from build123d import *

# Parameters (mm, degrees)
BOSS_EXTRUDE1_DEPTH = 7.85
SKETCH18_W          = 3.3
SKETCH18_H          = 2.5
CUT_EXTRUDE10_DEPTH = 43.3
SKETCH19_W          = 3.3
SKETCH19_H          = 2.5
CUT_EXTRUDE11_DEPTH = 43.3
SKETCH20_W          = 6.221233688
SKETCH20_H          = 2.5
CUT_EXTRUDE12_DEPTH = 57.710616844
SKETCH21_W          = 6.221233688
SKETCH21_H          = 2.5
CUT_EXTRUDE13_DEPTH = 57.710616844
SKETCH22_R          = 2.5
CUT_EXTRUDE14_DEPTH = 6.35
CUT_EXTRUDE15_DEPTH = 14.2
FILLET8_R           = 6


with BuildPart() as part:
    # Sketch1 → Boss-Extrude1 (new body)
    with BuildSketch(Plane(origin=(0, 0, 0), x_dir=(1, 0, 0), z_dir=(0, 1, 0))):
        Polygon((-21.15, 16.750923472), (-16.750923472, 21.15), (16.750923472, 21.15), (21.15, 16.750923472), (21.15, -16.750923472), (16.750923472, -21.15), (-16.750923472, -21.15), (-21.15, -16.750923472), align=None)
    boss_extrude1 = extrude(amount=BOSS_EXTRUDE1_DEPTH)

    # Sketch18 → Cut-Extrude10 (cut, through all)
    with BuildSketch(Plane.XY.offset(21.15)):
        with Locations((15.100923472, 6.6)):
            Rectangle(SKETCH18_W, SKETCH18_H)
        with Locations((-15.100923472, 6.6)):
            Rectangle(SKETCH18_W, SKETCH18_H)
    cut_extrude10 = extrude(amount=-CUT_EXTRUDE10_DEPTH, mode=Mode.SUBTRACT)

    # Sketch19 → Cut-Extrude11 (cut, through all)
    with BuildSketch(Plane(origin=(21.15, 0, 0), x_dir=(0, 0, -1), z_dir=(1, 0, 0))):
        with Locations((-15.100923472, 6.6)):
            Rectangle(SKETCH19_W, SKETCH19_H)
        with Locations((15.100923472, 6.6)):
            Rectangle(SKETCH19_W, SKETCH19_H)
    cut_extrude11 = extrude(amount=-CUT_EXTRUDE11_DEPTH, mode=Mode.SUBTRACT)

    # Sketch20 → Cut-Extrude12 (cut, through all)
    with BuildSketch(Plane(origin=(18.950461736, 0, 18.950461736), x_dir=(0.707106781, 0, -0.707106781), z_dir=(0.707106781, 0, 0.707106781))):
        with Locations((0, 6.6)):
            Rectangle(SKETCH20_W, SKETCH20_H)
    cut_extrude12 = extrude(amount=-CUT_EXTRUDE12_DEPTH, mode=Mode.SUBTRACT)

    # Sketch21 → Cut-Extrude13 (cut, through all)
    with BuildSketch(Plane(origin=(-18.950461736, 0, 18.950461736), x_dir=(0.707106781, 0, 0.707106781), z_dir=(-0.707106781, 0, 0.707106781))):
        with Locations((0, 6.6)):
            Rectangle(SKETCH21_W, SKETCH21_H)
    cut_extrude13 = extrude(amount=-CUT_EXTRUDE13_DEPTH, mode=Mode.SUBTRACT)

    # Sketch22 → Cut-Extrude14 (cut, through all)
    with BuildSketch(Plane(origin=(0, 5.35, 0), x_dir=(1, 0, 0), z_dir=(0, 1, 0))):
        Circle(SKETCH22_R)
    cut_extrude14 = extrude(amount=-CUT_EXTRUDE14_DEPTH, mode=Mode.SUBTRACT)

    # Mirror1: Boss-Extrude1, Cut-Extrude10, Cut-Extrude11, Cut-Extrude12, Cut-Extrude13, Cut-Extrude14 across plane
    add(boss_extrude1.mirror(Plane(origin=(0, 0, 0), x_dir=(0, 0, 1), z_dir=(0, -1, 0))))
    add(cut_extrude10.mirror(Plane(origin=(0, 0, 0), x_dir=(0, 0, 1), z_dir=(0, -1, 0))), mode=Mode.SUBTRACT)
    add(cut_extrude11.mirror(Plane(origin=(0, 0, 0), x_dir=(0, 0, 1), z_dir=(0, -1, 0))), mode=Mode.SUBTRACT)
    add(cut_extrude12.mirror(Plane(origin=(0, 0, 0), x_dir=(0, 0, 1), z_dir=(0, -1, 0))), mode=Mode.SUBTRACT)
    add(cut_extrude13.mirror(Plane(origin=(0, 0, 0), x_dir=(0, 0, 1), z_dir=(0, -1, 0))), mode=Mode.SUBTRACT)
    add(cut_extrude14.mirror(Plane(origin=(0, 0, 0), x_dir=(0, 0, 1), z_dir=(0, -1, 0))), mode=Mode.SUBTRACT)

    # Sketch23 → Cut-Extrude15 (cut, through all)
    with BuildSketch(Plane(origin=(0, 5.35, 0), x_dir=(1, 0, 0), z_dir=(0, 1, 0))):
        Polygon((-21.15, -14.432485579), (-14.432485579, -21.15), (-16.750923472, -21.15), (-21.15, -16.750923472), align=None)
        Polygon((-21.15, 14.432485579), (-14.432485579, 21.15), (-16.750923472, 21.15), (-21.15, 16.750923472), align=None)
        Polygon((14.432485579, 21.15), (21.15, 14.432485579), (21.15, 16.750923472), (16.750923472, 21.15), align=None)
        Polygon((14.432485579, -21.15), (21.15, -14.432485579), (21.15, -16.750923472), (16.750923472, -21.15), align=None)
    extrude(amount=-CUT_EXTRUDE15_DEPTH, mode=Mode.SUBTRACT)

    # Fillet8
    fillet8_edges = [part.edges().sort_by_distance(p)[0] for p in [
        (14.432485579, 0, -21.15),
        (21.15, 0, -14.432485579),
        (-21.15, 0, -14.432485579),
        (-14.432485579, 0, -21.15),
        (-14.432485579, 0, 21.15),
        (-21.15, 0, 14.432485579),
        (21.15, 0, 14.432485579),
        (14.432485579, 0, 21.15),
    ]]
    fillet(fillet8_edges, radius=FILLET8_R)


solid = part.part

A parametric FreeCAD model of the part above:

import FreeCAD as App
import Part
import Sketcher

V = App.Vector
Q = App.Units.Quantity


def edges_at(feature, points):
    """Names of the edges that pass closest to the given points."""
    edges = feature.Shape.Edges
    near = lambda p: min(range(len(edges)), key=lambda i: edges[i].distToShape(Part.Vertex(*p))[0])
    return sorted({f"Edge{near(p) + 1}" for p in points})


def add_polygon(sketch, points):
    """Adds a closed chain of lines whose ends are joined by coincident constraints."""
    first, n = sketch.GeometryCount, len(points)
    for a, b in zip(points, points[1:] + points[:1]):
        sketch.addGeometry(Part.LineSegment(App.Vector(*a, 0), App.Vector(*b, 0)), False)
    for i in range(n):
        sketch.addConstraint(Sketcher.Constraint("Coincident", first + i, 2, first + (i + 1) % n, 1))

doc = App.newDocument("Part")
params = doc.addObject("Spreadsheet::Sheet", "Params")
for row, (alias, value) in enumerate([
    ("pad1_length", "7.85 mm"),
    ("sketch2_width", "3.3 mm"),
    ("sketch2_height", "2.5 mm"),
    ("sketch3_width", "2.5 mm"),
    ("sketch3_height", "3.3 mm"),
    ("sketch4_height", "2.5 mm"),
    ("sketch5_height", "2.5 mm"),
    ("sketch6_diameter", "5 mm"),
    ("sketch7_length", "9.5 mm"),
    ("fillet_radius", "6 mm"),
], start=1):
    params.set(f"A{row}", alias)
    params.set(f"B{row}", "=" + value)
    params.setAlias(f"B{row}", alias)

body = doc.addObject("PartDesign::Body", "Body")

# Sketch on XZ plane
sketch1 = body.newObject("Sketcher::SketchObject", "Sketch")
sketch1.AttachmentSupport = (doc.getObject("XZ_Plane"), [""])
sketch1.MapMode = "FlatFace"
add_polygon(sketch1, [(-17, -21), (-21, -17), (-21, 17), (-17, 21), (17, 21), (21, 17), (21, -17), (17, -21)])  # lines 0-7
sketch1.addConstraint([
    Sketcher.Constraint("Vertical", 1),
    Sketcher.Constraint("Horizontal", 3),
    Sketcher.Constraint("Vertical", 5),
    Sketcher.Constraint("Horizontal", 7),
    Sketcher.Constraint("Symmetric", 0, 2, 4, 2, -1, 1),
    Sketcher.Constraint("Symmetric", 2, 2, 6, 2, -1, 1),
    Sketcher.Constraint("Perpendicular", 0, 2),
    Sketcher.Constraint("Perpendicular", 2, 4),
    Sketcher.Constraint("Perpendicular", 4, 6),
    Sketcher.Constraint("Horizontal", 1, 2, 4, 2),
    Sketcher.Constraint("Vertical", 3, 2, 6, 2),
    Sketcher.Constraint("Equal", 7, 1),
    Sketcher.Constraint("DistanceX", 1, 2, 4, 2, Q("42.3 mm")),
    Sketcher.Constraint("DistanceX", 3, 1, 3, 2, Q("33.501847 mm")),
])
pad1 = body.newObject("PartDesign::Pad", "Pad")
pad1.Profile = sketch1
pad1.setExpression("Length", "Params.pad1_length")
pad1.Reversed = True

# Sketch on XY plane
sketch2 = body.newObject("Sketcher::SketchObject", "Sketch001")
sketch2.AttachmentSupport = (doc.getObject("XY_Plane"), [""])
sketch2.MapMode = "FlatFace"
sketch2.AttachmentOffset = App.Placement(V(0, 0, 21.15), App.Rotation())
add_polygon(sketch2, [(13.5, 7.8), (13.5, 5.3), (16.8, 5.3), (16.8, 7.8)])  # lines 0-3
add_polygon(sketch2, [(-16.8, 7.8), (-16.8, 5.3), (-13.5, 5.3), (-13.5, 7.8)])  # lines 4-7
sketch2.addConstraint([
    Sketcher.Constraint("Vertical", 0),
    Sketcher.Constraint("Horizontal", 1),
    Sketcher.Constraint("Vertical", 2),
    Sketcher.Constraint("Horizontal", 3),
    Sketcher.Constraint("Vertical", 4),
    Sketcher.Constraint("Horizontal", 5),
    Sketcher.Constraint("Vertical", 6),
    Sketcher.Constraint("Horizontal", 7),
    Sketcher.Constraint("Symmetric", 1, 2, 4, 2, -2),
    Sketcher.Constraint("Symmetric", 3, 2, 6, 2, -2),
    Sketcher.Constraint("DistanceX", 1, 1, 1, 2, Q("3.3 mm")),
    Sketcher.Constraint("DistanceY", 0, 2, 0, 1, Q("2.5 mm")),
    Sketcher.Constraint("DistanceY", -1, 1, 0, 2, Q("5.35 mm")),
    Sketcher.Constraint("DistanceX", -1, 1, 0, 2, Q("13.450923 mm")),
])
sketch2.setExpression("Constraints[18]", "Params.sketch2_width")
sketch2.setExpression("Constraints[19]", "Params.sketch2_height")
pocket1 = body.newObject("PartDesign::Pocket", "Pocket")
pocket1.Profile = sketch2
pocket1.Type = "ThroughAll"

# Sketch on YZ plane
sketch3 = body.newObject("Sketcher::SketchObject", "Sketch002")
sketch3.AttachmentSupport = (doc.getObject("YZ_Plane"), [""])
sketch3.MapMode = "FlatFace"
sketch3.AttachmentOffset = App.Placement(V(0, 0, 21.15), App.Rotation())
add_polygon(sketch3, [(7.8, 16.8), (5.3, 16.8), (5.3, 13.5), (7.8, 13.5)])  # lines 0-3
add_polygon(sketch3, [(7.8, -13.5), (5.3, -13.5), (5.3, -16.8), (7.8, -16.8)])  # lines 4-7
sketch3.addConstraint([
    Sketcher.Constraint("Horizontal", 0),
    Sketcher.Constraint("Vertical", 1),
    Sketcher.Constraint("Horizontal", 2),
    Sketcher.Constraint("Vertical", 3),
    Sketcher.Constraint("Horizontal", 4),
    Sketcher.Constraint("Vertical", 5),
    Sketcher.Constraint("Horizontal", 6),
    Sketcher.Constraint("Vertical", 7),
    Sketcher.Constraint("Symmetric", 1, 2, 4, 2, -1),
    Sketcher.Constraint("Symmetric", 3, 2, 6, 2, -1),
    Sketcher.Constraint("DistanceX", 0, 2, 0, 1, Q("2.5 mm")),
    Sketcher.Constraint("DistanceY", 1, 2, 1, 1, Q("3.3 mm")),
    Sketcher.Constraint("DistanceX", -1, 1, 0, 2, Q("5.35 mm")),
    Sketcher.Constraint("DistanceY", -1, 1, 0, 2, Q("16.750923 mm")),
])
sketch3.setExpression("Constraints[18]", "Params.sketch3_width")
sketch3.setExpression("Constraints[19]", "Params.sketch3_height")
pocket2 = body.newObject("PartDesign::Pocket", "Pocket001")
pocket2.Profile = sketch3
pocket2.Type = "ThroughAll"

# Sketch on an angled plane
sketch4 = body.newObject("Sketcher::SketchObject", "Sketch003")
sketch4.Placement = App.Placement(V(18.950462, 0, 18.950462), App.Rotation(V(0.707106781, 0, -0.707106781), V(0, 0.999999999, 0), V(0.707106781, 0, 0.707106781), "ZXY"))
add_polygon(sketch4, [(-3.1, 7.8), (-3.1, 5.3), (3.1, 5.3), (3.1, 7.8)])  # lines 0-3
sketch4.addConstraint([
    Sketcher.Constraint("Vertical", 0),
    Sketcher.Constraint("Horizontal", 1),
    Sketcher.Constraint("Vertical", 2),
    Sketcher.Constraint("Horizontal", 3),
    Sketcher.Constraint("DistanceY", 0, 2, 0, 1, Q("2.5 mm")),
    Sketcher.Constraint("DistanceY", -1, 1, 0, 2, Q("5.35 mm")),
    Sketcher.Constraint("DistanceX", 1, 1, 1, 2, Q("6.221234 mm")),
    Sketcher.Constraint("DistanceX", 0, 2, -1, 1, Q("3.110617 mm")),
])
sketch4.setExpression("Constraints[8]", "Params.sketch4_height")
pocket3 = body.newObject("PartDesign::Pocket", "Pocket002")
pocket3.Profile = sketch4
pocket3.Type = "ThroughAll"

# Sketch on an angled plane
sketch5 = body.newObject("Sketcher::SketchObject", "Sketch004")
sketch5.Placement = App.Placement(V(-18.950462, 0, 18.950462), App.Rotation(V(0.707106781, 0, 0.707106781), V(0, 0.999999999, 0), V(-0.707106781, 0, 0.707106781), "ZXY"))
add_polygon(sketch5, [(-3.1, 7.8), (-3.1, 5.3), (3.1, 5.3), (3.1, 7.8)])  # lines 0-3
sketch5.addConstraint([
    Sketcher.Constraint("Vertical", 0),
    Sketcher.Constraint("Horizontal", 1),
    Sketcher.Constraint("Vertical", 2),
    Sketcher.Constraint("Horizontal", 3),
    Sketcher.Constraint("DistanceY", 0, 2, 0, 1, Q("2.5 mm")),
    Sketcher.Constraint("DistanceY", -1, 1, 0, 2, Q("5.35 mm")),
    Sketcher.Constraint("DistanceX", 1, 1, 1, 2, Q("6.221234 mm")),
    Sketcher.Constraint("DistanceX", 0, 2, -1, 1, Q("3.110617 mm")),
])
sketch5.setExpression("Constraints[8]", "Params.sketch5_height")
pocket4 = body.newObject("PartDesign::Pocket", "Pocket003")
pocket4.Profile = sketch5
pocket4.Type = "ThroughAll"

# Sketch on XZ plane
sketch6 = body.newObject("Sketcher::SketchObject", "Sketch005")
sketch6.AttachmentSupport = (doc.getObject("XZ_Plane"), [""])
sketch6.MapMode = "FlatFace"
sketch6.AttachmentOffset = App.Placement(V(0, 0, -5.35), App.Rotation())
sketch6.addGeometry(Part.Circle(V(0, 0, 0), V(0, 0, 1), 2.5), False)
sketch6.addConstraint([
    Sketcher.Constraint("Coincident", 0, 3, -1, 1),
    Sketcher.Constraint("Diameter", 0, Q("5 mm")),
])
sketch6.setExpression("Constraints[1]", "Params.sketch6_diameter")
pocket5 = body.newObject("PartDesign::Pocket", "Pocket004")
pocket5.Profile = sketch6
pocket5.Type = "ThroughAll"
pocket5.Reversed = True
doc.recompute()

mirrored = body.newObject("PartDesign::Mirrored", "Mirrored")
mirrored.Originals = [pad1, pocket1, pocket2, pocket3, pocket4, pocket5]
mirrored.MirrorPlane = (doc.getObject("XZ_Plane"), [""])
body.Tip = mirrored

# Sketch on XZ plane
sketch7 = body.newObject("Sketcher::SketchObject", "Sketch006")
sketch7.AttachmentSupport = (doc.getObject("XZ_Plane"), [""])
sketch7.MapMode = "FlatFace"
sketch7.AttachmentOffset = App.Placement(V(0, 0, -5.35), App.Rotation())
add_polygon(sketch7, [(-14.4, 21.1), (-21.1, 14.4), (-21.1, 16.8), (-16.8, 21.1)])  # lines 0-3
add_polygon(sketch7, [(-21.1, -14.4), (-14.4, -21.1), (-16.8, -21.1), (-21.1, -16.8)])  # lines 4-7
add_polygon(sketch7, [(14.4, -21.1), (21.1, -14.4), (21.1, -16.8), (16.8, -21.1)])  # lines 8-11
add_polygon(sketch7, [(21.1, 14.4), (14.4, 21.1), (16.8, 21.1), (21.1, 16.8)])  # lines 12-15
sketch7.addConstraint([
    Sketcher.Constraint("Vertical", 1),
    Sketcher.Constraint("Horizontal", 3),
    Sketcher.Constraint("Horizontal", 5),
    Sketcher.Constraint("Vertical", 7),
    Sketcher.Constraint("Vertical", 9),
    Sketcher.Constraint("Horizontal", 11),
    Sketcher.Constraint("Horizontal", 13),
    Sketcher.Constraint("Vertical", 15),
    Sketcher.Constraint("Symmetric", 0, 2, 8, 2, -1, 1),
    Sketcher.Constraint("Symmetric", 2, 2, 10, 2, -1, 1),
    Sketcher.Constraint("Symmetric", 4, 2, 12, 2, -1, 1),
    Sketcher.Constraint("Symmetric", 6, 2, 14, 2, -1, 1),
    Sketcher.Constraint("Symmetric", 7, 2, 8, 2, -2),
    Sketcher.Constraint("Symmetric", 5, 2, 10, 2, -2),
    Sketcher.Constraint("Parallel", 0, 2),
    Sketcher.Constraint("Perpendicular", 2, 4),
    Sketcher.Constraint("Parallel", 4, 6),
    Sketcher.Constraint("Perpendicular", 6, 8),
    Sketcher.Constraint("Parallel", 8, 10),
    Sketcher.Constraint("Perpendicular", 10, 12),
    Sketcher.Constraint("Parallel", 12, 14),
    Sketcher.Constraint("Horizontal", 6, 2, 9, 2),
    Sketcher.Constraint("Distance", 0, Q("9.5 mm")),
    Sketcher.Constraint("DistanceY", 4, 2, 3, 2, Q("42.3 mm")),
    Sketcher.Constraint("DistanceX", 7, 2, 8, 2, Q("42.3 mm")),
    Sketcher.Constraint("DistanceX", 3, 1, 3, 2, Q("2.318438 mm")),
])
sketch7.setExpression("Constraints[38]", "Params.sketch7_length")
pocket6 = body.newObject("PartDesign::Pocket", "Pocket005")
pocket6.Profile = sketch7
pocket6.Type = "ThroughAll"
pocket6.Reversed = True
doc.recompute()

fillet = body.newObject("PartDesign::Fillet", "Fillet")
fillet.Base = (pocket6, edges_at(pocket6, [
    (14.432, 0, -21.15),
    (21.15, 0, -14.432),
    (-21.15, 0, -14.432),
    (-14.432, 0, -21.15),
    (-14.432, 0, 21.15),
    (-21.15, 0, 14.432),
    (21.15, 0, 14.432),
    (14.432, 0, 21.15),
]))
fillet.setExpression("Radius", "Params.fillet_radius")

doc.recompute()
